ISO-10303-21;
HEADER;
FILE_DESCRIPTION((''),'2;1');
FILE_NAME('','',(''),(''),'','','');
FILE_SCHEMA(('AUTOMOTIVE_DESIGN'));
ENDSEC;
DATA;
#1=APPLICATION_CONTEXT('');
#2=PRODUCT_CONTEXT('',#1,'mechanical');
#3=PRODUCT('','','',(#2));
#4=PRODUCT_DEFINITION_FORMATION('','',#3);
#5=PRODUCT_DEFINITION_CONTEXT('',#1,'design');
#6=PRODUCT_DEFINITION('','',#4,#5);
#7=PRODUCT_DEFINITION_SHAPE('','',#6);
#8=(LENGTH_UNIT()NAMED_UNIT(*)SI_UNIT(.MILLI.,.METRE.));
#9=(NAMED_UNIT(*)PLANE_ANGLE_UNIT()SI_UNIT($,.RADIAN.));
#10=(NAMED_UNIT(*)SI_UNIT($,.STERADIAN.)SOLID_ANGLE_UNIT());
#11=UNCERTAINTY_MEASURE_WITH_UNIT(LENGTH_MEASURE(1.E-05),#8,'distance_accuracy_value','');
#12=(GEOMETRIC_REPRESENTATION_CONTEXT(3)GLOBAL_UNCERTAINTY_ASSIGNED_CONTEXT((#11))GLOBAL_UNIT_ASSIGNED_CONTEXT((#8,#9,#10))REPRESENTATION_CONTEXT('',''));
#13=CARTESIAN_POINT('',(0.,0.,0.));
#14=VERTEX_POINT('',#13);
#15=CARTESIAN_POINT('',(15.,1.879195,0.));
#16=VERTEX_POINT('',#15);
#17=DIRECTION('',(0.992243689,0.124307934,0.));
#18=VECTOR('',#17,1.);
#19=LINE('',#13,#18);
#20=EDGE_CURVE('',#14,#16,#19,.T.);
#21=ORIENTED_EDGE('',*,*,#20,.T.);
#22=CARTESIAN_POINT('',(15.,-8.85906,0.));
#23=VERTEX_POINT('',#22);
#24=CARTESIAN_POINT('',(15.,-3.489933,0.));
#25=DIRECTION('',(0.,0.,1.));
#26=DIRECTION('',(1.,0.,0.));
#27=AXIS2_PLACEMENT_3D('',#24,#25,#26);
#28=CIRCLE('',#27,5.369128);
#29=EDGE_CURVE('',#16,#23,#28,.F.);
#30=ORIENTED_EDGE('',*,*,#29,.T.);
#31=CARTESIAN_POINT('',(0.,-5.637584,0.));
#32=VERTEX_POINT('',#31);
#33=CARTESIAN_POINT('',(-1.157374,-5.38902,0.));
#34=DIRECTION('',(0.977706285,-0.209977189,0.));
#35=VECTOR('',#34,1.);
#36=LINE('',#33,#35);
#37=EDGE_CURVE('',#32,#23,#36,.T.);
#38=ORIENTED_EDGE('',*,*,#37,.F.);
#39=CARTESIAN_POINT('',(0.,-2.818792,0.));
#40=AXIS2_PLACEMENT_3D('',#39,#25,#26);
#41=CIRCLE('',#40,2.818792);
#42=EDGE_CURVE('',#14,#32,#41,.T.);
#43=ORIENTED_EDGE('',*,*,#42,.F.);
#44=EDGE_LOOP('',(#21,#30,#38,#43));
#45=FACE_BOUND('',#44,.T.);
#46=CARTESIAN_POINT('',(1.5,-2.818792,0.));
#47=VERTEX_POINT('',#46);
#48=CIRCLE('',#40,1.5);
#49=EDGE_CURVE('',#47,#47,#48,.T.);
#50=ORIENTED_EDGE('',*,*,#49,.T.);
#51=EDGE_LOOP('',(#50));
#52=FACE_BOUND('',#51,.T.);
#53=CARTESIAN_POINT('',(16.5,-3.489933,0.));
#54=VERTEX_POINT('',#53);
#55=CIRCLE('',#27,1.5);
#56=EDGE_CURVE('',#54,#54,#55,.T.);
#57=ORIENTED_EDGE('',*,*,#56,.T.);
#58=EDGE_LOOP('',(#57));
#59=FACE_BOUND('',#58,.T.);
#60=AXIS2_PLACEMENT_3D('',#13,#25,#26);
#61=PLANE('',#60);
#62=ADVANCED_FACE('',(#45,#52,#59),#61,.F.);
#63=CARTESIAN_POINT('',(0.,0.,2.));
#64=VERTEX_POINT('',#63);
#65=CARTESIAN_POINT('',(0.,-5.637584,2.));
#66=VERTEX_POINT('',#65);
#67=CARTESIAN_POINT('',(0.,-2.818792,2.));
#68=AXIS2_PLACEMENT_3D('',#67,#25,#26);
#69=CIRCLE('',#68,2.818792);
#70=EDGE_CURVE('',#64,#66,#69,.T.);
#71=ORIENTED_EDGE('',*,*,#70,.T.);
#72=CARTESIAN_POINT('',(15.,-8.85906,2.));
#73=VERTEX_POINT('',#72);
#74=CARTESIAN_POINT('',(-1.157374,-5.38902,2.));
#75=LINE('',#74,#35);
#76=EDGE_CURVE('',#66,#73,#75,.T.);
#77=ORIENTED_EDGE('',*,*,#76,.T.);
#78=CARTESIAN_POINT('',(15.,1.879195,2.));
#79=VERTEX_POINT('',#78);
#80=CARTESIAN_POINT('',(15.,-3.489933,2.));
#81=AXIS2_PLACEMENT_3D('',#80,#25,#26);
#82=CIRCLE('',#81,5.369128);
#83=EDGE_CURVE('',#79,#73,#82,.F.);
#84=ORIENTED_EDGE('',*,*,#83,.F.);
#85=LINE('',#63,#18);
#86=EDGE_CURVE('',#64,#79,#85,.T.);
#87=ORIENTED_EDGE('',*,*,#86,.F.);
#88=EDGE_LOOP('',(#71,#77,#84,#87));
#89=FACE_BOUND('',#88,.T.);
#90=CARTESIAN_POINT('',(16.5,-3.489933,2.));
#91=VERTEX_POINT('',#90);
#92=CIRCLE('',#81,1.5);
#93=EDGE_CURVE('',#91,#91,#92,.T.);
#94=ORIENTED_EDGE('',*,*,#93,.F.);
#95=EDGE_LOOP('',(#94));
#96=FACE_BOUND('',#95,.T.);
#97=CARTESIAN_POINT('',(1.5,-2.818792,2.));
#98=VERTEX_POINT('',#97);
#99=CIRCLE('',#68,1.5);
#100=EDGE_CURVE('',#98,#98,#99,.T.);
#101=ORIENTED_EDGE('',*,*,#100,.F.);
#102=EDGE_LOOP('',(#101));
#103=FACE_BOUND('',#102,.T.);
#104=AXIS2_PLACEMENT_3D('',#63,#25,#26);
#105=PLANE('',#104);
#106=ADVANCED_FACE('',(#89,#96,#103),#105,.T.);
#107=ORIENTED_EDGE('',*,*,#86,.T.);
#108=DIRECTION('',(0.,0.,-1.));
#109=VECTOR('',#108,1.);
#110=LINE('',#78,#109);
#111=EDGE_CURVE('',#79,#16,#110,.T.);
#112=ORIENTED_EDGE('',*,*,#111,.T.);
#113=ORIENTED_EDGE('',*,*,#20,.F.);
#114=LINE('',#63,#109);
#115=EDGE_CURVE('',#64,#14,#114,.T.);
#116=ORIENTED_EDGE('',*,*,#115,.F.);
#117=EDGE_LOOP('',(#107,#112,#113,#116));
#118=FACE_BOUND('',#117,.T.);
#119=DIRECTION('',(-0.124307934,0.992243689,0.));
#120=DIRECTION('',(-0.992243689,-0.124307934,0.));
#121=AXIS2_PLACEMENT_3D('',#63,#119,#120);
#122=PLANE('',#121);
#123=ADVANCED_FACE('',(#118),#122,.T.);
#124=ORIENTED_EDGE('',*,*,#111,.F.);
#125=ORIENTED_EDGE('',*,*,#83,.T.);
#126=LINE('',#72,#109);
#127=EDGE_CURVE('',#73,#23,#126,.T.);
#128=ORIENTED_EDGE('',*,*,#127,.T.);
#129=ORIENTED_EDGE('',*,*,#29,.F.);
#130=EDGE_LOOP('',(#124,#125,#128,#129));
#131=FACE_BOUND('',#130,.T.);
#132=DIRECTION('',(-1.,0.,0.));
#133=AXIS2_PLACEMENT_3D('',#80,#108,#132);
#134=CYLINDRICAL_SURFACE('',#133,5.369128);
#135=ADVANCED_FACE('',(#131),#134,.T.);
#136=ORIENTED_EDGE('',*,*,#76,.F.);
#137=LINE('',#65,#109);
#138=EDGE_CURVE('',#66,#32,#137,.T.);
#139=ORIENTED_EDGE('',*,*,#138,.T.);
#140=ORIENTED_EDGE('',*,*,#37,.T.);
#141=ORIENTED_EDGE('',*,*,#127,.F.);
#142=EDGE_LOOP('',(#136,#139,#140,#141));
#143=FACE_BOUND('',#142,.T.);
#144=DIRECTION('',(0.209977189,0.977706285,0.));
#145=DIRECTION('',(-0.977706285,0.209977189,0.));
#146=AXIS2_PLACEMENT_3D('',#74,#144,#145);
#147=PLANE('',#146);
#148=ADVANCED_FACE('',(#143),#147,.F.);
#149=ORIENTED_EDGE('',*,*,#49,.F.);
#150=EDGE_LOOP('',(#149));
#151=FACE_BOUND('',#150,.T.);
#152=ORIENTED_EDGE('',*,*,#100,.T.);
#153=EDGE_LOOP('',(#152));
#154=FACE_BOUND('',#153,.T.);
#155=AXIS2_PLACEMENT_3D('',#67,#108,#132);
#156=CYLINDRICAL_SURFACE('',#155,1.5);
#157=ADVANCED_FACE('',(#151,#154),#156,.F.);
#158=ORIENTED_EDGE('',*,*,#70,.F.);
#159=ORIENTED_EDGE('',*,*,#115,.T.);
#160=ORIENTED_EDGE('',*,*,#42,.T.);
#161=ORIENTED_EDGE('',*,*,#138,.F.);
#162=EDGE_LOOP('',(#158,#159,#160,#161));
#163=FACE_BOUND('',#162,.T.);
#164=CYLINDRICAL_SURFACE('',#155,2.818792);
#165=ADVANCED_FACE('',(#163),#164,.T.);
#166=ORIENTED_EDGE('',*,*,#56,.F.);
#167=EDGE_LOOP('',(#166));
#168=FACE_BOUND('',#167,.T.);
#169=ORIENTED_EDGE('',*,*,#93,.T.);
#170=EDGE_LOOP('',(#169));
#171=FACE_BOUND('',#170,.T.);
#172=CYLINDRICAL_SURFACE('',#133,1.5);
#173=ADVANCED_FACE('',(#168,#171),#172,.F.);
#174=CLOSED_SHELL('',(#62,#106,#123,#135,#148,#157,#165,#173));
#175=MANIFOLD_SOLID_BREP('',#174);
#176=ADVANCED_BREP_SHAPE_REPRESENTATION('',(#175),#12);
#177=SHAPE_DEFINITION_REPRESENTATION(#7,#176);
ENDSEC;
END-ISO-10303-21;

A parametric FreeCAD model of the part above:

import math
import FreeCAD as App
import Part
import Sketcher
from FreeCAD import Vector

doc = App.newDocument("Part")
body = doc.addObject("PartDesign::Body", "Body")

sketch1 = body.newObject("Sketcher::SketchObject", "Sketch")
sketch1.AttachmentSupport = (doc.getObject("XY_Plane"), [""])
sketch1.MapMode = "FlatFace"
sketch1.addGeometry([
    Part.LineSegment(Vector(15, 1.9, 0), Vector(0, 0, 0)),
    Part.ArcOfCircle(Part.Circle(Vector(0, -2.8, 0), Vector(0, 0, 1), 2.8), math.radians(90), math.radians(270)),
    Part.LineSegment(Vector(0, -5.6, 0), Vector(15, -8.9, 0)),
    Part.ArcOfCircle(Part.Circle(Vector(15, -3.5, 0), Vector(0, 0, 1), 5.4), math.radians(-90), math.radians(90)),
    Part.Circle(Vector(15, -3.5, 0), Vector(0, 0, 1), 1.5),
    Part.Circle(Vector(0, -2.8, 0), Vector(0, 0, 1), 1.5),
], False)
sketch1.addConstraint([
    Sketcher.Constraint("Coincident", 0, 2, 1, 1),
    Sketcher.Constraint("Coincident", 1, 2, 2, 1),
    Sketcher.Constraint("Coincident", 2, 2, 3, 1),
    Sketcher.Constraint("Coincident", 3, 2, 0, 1),
    Sketcher.Constraint("Coincident", 0, 2, -1, 1),
    Sketcher.Constraint("Coincident", 4, 3, 3, 3),
    Sketcher.Constraint("Coincident", 5, 3, 1, 3),
    Sketcher.Constraint("Equal", 4, 5),
    Sketcher.Constraint("PointOnObject", 1, 3, -2),
    Sketcher.Constraint("PointOnObject", 1, 2, -2),
    Sketcher.Constraint("Vertical", 4, 3, 2, 2),
    Sketcher.Constraint("Vertical", 2, 2, 3, 2),
    Sketcher.Constraint("Diameter", 4, 3.0),
    Sketcher.Constraint("DistanceX", -1, 1, 3, 3, 15.0),
    Sketcher.Constraint("Radius", 1, 2.818792),
    Sketcher.Constraint("Radius", 3, 5.369128),
    Sketcher.Constraint("Distance", 2, 15.342031),
])
pad1 = body.newObject("PartDesign::Pad", "Pad")
pad1.Profile = sketch1
pad1.Length = 2

doc.recompute()
